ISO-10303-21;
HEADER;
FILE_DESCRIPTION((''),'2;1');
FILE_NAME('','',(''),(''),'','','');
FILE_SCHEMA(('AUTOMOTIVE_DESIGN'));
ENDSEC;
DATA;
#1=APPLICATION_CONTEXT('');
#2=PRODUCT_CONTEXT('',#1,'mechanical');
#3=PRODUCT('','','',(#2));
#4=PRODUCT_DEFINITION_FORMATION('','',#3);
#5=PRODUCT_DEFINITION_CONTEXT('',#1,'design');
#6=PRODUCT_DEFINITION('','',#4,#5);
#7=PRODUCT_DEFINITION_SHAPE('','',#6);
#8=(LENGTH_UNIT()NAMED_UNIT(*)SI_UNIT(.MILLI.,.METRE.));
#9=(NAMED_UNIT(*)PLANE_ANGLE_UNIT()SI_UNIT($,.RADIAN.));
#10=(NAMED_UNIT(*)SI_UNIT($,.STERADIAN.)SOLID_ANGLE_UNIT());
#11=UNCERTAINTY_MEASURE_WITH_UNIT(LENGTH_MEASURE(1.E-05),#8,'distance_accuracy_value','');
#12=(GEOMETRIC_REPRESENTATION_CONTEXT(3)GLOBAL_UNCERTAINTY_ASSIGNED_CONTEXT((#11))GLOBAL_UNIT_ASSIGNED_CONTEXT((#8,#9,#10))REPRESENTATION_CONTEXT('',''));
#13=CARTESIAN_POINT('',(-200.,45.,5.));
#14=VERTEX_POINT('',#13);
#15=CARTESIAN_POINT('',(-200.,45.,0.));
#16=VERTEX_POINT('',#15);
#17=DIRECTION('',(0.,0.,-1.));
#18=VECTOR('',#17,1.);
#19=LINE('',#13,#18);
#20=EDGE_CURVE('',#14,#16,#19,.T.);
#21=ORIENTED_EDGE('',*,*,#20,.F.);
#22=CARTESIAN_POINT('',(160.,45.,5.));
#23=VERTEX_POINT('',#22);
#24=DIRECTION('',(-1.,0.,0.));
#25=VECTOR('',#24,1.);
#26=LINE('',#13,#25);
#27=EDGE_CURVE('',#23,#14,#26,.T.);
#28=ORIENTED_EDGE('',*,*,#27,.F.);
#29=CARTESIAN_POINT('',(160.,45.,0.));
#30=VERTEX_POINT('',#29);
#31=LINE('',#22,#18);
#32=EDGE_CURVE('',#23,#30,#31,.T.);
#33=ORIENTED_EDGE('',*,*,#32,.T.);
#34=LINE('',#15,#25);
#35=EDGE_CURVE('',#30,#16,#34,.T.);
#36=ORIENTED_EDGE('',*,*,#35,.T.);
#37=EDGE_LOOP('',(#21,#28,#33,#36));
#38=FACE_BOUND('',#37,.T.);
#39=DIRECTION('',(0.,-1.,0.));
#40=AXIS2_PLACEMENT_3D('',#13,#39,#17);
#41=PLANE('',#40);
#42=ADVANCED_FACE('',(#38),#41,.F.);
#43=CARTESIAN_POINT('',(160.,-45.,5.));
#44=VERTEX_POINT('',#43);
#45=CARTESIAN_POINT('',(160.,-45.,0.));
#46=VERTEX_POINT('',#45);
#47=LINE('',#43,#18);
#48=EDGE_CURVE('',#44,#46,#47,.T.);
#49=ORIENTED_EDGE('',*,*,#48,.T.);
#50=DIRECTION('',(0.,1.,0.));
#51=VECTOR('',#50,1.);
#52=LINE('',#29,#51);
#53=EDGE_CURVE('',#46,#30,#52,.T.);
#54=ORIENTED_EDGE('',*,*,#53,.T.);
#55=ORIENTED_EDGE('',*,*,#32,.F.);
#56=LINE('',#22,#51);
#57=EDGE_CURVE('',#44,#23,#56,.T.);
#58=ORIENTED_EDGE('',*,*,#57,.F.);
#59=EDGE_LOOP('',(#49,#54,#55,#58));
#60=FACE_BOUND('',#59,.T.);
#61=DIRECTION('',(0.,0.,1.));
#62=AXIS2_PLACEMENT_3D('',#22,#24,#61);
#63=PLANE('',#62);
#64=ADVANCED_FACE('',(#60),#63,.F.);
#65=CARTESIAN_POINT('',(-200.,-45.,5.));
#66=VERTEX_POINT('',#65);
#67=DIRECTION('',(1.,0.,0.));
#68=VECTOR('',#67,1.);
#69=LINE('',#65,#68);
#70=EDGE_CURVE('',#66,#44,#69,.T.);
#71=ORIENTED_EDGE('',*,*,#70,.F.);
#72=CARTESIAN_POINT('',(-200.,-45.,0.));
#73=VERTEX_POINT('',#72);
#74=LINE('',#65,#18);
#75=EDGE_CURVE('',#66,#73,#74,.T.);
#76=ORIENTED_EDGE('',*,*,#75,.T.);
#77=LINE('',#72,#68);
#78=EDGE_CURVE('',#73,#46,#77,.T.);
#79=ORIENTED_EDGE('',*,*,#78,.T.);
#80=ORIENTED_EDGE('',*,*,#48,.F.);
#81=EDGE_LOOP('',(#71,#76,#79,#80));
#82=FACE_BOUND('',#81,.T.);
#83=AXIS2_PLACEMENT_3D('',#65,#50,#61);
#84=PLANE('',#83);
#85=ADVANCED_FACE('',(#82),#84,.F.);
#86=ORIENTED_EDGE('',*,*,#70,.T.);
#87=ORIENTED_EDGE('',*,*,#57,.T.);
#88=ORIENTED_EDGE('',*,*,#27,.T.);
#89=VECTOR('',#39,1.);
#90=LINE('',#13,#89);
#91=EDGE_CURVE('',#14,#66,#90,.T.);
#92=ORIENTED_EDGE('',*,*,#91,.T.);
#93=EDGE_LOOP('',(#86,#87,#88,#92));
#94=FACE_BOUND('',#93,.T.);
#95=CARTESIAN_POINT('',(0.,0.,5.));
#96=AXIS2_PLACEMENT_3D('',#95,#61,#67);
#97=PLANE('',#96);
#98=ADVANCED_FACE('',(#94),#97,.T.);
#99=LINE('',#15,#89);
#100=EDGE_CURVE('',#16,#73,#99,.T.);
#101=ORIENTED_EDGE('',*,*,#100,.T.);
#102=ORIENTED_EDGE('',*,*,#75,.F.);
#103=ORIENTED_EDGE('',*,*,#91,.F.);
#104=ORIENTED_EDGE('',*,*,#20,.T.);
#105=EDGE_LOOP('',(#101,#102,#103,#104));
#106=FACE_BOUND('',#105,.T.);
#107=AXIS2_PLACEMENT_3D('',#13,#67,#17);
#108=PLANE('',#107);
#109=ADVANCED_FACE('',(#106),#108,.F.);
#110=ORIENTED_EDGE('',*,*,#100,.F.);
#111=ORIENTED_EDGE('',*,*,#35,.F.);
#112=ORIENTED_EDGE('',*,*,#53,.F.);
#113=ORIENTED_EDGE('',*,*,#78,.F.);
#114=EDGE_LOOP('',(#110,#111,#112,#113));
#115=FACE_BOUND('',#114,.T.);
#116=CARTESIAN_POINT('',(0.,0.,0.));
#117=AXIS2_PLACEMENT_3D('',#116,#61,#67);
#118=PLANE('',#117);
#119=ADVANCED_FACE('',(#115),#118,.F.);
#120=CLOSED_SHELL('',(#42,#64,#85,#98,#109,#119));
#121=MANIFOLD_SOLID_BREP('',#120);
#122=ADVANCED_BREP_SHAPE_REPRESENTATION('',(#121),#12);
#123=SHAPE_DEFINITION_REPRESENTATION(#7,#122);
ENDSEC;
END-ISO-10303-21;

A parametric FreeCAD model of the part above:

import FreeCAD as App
import Part
import Sketcher
from FreeCAD import Vector
Q = App.Units.Quantity

doc = App.newDocument("Part")
params = doc.addObject("Spreadsheet::Sheet", "Params")
for row, (alias, value) in enumerate([
    ("sketch1_width", "360 mm"),
    ("sketch1_height", "90 mm"),
    ("pad1_length", "5 mm"),
], start=1):
    params.set(f"A{row}", alias)
    params.set(f"B{row}", "=" + value)
    params.setAlias(f"B{row}", alias)

body = doc.addObject("PartDesign::Body", "Body")

sketch1 = body.newObject("Sketcher::SketchObject", "Sketch")
sketch1.AttachmentSupport = (doc.getObject("XY_Plane"), [""])
sketch1.MapMode = "FlatFace"
sketch1.addGeometry([
    Part.LineSegment(Vector(-200, 45, 0), Vector(-200, -45, 0)),
    Part.LineSegment(Vector(-200, -45, 0), Vector(160, -45, 0)),
    Part.LineSegment(Vector(160, -45, 0), Vector(160, 45, 0)),
    Part.LineSegment(Vector(160, 45, 0), Vector(-200, 45, 0)),
], False)
sketch1.addConstraint([
    Sketcher.Constraint("Coincident", 0, 2, 1, 1),
    Sketcher.Constraint("Coincident", 1, 2, 2, 1),
    Sketcher.Constraint("Coincident", 2, 2, 3, 1),
    Sketcher.Constraint("Coincident", 3, 2, 0, 1),
    Sketcher.Constraint("Vertical", 0),
    Sketcher.Constraint("Horizontal", 1),
    Sketcher.Constraint("Vertical", 2),
    Sketcher.Constraint("Horizontal", 3),
    Sketcher.Constraint("DistanceX", 1, 1, 1, 2, Q("360 mm")),
    Sketcher.Constraint("DistanceY", 0, 2, 0, 1, Q("90 mm")),
    Sketcher.Constraint("DistanceX", 0, 2, -1, 1, Q("200 mm")),
    Sketcher.Constraint("DistanceY", 0, 2, -1, 1, Q("45 mm")),
])
sketch1.setExpression("Constraints[8]", "Params.sketch1_width")
sketch1.setExpression("Constraints[9]", "Params.sketch1_height")
pad1 = body.newObject("PartDesign::Pad", "Pad")
pad1.Profile = sketch1
pad1.setExpression("Length", "Params.pad1_length")

doc.recompute()
